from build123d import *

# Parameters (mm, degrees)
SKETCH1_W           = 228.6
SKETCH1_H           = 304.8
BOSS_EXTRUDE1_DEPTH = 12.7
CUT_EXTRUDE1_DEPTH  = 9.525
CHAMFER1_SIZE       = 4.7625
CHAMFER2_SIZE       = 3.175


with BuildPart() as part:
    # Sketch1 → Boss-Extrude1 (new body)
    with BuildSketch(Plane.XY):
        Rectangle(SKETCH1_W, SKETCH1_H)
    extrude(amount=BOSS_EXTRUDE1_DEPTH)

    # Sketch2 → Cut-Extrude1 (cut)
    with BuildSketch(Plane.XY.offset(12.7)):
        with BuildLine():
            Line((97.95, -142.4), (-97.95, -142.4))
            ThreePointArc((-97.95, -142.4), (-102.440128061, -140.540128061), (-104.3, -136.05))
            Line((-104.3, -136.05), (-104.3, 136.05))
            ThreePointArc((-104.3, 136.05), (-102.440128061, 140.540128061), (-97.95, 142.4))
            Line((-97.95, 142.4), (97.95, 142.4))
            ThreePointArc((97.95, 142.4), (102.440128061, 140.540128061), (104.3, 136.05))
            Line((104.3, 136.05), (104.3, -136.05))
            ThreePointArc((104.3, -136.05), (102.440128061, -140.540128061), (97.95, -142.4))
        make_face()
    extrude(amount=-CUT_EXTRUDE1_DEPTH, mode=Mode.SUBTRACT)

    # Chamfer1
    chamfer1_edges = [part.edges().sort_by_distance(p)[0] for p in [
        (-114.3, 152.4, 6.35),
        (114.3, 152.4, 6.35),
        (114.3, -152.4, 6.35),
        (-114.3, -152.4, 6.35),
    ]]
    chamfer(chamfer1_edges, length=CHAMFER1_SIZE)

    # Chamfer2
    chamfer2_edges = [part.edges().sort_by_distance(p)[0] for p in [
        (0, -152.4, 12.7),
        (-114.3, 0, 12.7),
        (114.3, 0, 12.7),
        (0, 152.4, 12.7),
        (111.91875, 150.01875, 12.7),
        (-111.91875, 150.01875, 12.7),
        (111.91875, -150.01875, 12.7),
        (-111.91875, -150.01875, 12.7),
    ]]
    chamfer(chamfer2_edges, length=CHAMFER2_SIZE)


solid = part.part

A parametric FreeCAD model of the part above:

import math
import FreeCAD as App
import Part
import Sketcher
from FreeCAD import Vector
Q = App.Units.Quantity


def edges_at(feature, points):
    """Names of the edges that pass closest to the given points."""
    edges = feature.Shape.Edges
    near = lambda p: min(range(len(edges)), key=lambda i: edges[i].distToShape(Part.Vertex(*p))[0])
    return sorted({f"Edge{near(p) + 1}" for p in points})

doc = App.newDocument("Part")
body = doc.addObject("PartDesign::Body", "Body")

sketch1 = doc.addObject("Sketcher::SketchObject", "Sketch")
body.addObject(sketch1)
sketch1.AttachmentSupport = (doc.XY_Plane, [""])
sketch1.MapMode = "FlatFace"
sketch1.addGeometry([
    Part.LineSegment(Vector(-114.3, 152.4, 0), Vector(-114.3, -152.4, 0)),
    Part.LineSegment(Vector(-114.3, -152.4, 0), Vector(114.3, -152.4, 0)),
    Part.LineSegment(Vector(114.3, -152.4, 0), Vector(114.3, 152.4, 0)),
    Part.LineSegment(Vector(114.3, 152.4, 0), Vector(-114.3, 152.4, 0)),
], False)
sketch1.addConstraint([
    Sketcher.Constraint("Coincident", 0, 2, 1, 1),
    Sketcher.Constraint("Coincident", 1, 2, 2, 1),
    Sketcher.Constraint("Coincident", 2, 2, 3, 1),
    Sketcher.Constraint("Coincident", 3, 2, 0, 1),
    Sketcher.Constraint("Vertical", 0),
    Sketcher.Constraint("Horizontal", 1),
    Sketcher.Constraint("Vertical", 2),
    Sketcher.Constraint("Horizontal", 3),
    Sketcher.Constraint("Symmetric", 0, 2, 2, 2, -1, 1),
    Sketcher.Constraint("DistanceX", 1, 1, 1, 2, Q("9 in")),
    Sketcher.Constraint("DistanceY", 0, 2, 0, 1, Q("12 in")),
])
pad1 = doc.addObject("PartDesign::Pad", "Pad")
body.addObject(pad1)
pad1.Profile = sketch1
pad1.Length = Q("0.5 in")

sketch2 = doc.addObject("Sketcher::SketchObject", "Sketch001")
body.addObject(sketch2)
sketch2.AttachmentSupport = (doc.XY_Plane, [""])
sketch2.MapMode = "FlatFace"
sketch2.AttachmentOffset = App.Placement(Vector(0, 0, 0.5 * 25.4), App.Rotation())
sketch2.addGeometry([
    Part.LineSegment(Vector(-97.95, -142.4, 0), Vector(97.95, -142.4, 0)),
    Part.ArcOfCircle(Part.Circle(Vector(97.95, -136.05, 0), Vector(0, 0, 1), 6.35), math.radians(-90), math.radians(0)),
    Part.LineSegment(Vector(104.3, -136.05, 0), Vector(104.3, 136.05, 0)),
    Part.ArcOfCircle(Part.Circle(Vector(97.95, 136.05, 0), Vector(0, 0, 1), 6.35), math.radians(0), math.radians(90)),
    Part.LineSegment(Vector(97.95, 142.4, 0), Vector(-97.95, 142.4, 0)),
    Part.ArcOfCircle(Part.Circle(Vector(-97.95, 136.05, 0), Vector(0, 0, 1), 6.35), math.radians(90), math.radians(180)),
    Part.LineSegment(Vector(-104.3, 136.05, 0), Vector(-104.3, -136.05, 0)),
    Part.ArcOfCircle(Part.Circle(Vector(-97.95, -136.05, 0), Vector(0, 0, 1), 6.35), math.radians(180), math.radians(270)),
], False)
sketch2.addConstraint([
    Sketcher.Constraint("Tangent", 0, 2, 1, 1),
    Sketcher.Constraint("Tangent", 1, 2, 2, 1),
    Sketcher.Constraint("Tangent", 2, 2, 3, 1),
    Sketcher.Constraint("Tangent", 3, 2, 4, 1),
    Sketcher.Constraint("Tangent", 4, 2, 5, 1),
    Sketcher.Constraint("Tangent", 5, 2, 6, 1),
    Sketcher.Constraint("Tangent", 6, 2, 7, 1),
    Sketcher.Constraint("Tangent", 7, 2, 0, 1),
    Sketcher.Constraint("Horizontal", 0),
    Sketcher.Constraint("Vertical", 2),
    Sketcher.Constraint("Horizontal", 4),
    Sketcher.Constraint("Vertical", 6),
    Sketcher.Constraint("Equal", 1, 3),
    Sketcher.Constraint("Equal", 3, 5),
    Sketcher.Constraint("Equal", 5, 7),
    Sketcher.Constraint("Symmetric", 1, 3, 5, 3, -1, 1),
    Sketcher.Constraint("Radius", 1, Q("0.25 in")),
    Sketcher.Constraint("DistanceX", 0, 1, 0, 2, Q("195.9 mm")),
    Sketcher.Constraint("DistanceY", 2, 1, 2, 2, Q("272.1 mm")),
])
pocket1 = doc.addObject("PartDesign::Pocket", "Pocket")
body.addObject(pocket1)
pocket1.Profile = sketch2
pocket1.Length = Q("0.375 in")
doc.recompute()

chamfer = doc.addObject("PartDesign::Chamfer", "Chamfer")
body.addObject(chamfer)
chamfer.Base = (pocket1, edges_at(pocket1, [
    (-114.3, 152.4, 6.35),
    (114.3, 152.4, 6.35),
    (114.3, -152.4, 6.35),
    (-114.3, -152.4, 6.35),
]))
chamfer.Size = Q("0.1875 in")
doc.recompute()

chamfer2 = doc.addObject("PartDesign::Chamfer", "Chamfer001")
body.addObject(chamfer2)
chamfer2.Base = (chamfer, edges_at(chamfer, [
    (0, -152.4, 12.7),
    (-114.3, 0, 12.7),
    (114.3, 0, 12.7),
    (0, 152.4, 12.7),
    (111.919, 150.019, 12.7),
    (-111.919, 150.019, 12.7),
    (111.919, -150.019, 12.7),
    (-111.919, -150.019, 12.7),
]))
chamfer2.Size = Q("0.125 in")

doc.recompute()
